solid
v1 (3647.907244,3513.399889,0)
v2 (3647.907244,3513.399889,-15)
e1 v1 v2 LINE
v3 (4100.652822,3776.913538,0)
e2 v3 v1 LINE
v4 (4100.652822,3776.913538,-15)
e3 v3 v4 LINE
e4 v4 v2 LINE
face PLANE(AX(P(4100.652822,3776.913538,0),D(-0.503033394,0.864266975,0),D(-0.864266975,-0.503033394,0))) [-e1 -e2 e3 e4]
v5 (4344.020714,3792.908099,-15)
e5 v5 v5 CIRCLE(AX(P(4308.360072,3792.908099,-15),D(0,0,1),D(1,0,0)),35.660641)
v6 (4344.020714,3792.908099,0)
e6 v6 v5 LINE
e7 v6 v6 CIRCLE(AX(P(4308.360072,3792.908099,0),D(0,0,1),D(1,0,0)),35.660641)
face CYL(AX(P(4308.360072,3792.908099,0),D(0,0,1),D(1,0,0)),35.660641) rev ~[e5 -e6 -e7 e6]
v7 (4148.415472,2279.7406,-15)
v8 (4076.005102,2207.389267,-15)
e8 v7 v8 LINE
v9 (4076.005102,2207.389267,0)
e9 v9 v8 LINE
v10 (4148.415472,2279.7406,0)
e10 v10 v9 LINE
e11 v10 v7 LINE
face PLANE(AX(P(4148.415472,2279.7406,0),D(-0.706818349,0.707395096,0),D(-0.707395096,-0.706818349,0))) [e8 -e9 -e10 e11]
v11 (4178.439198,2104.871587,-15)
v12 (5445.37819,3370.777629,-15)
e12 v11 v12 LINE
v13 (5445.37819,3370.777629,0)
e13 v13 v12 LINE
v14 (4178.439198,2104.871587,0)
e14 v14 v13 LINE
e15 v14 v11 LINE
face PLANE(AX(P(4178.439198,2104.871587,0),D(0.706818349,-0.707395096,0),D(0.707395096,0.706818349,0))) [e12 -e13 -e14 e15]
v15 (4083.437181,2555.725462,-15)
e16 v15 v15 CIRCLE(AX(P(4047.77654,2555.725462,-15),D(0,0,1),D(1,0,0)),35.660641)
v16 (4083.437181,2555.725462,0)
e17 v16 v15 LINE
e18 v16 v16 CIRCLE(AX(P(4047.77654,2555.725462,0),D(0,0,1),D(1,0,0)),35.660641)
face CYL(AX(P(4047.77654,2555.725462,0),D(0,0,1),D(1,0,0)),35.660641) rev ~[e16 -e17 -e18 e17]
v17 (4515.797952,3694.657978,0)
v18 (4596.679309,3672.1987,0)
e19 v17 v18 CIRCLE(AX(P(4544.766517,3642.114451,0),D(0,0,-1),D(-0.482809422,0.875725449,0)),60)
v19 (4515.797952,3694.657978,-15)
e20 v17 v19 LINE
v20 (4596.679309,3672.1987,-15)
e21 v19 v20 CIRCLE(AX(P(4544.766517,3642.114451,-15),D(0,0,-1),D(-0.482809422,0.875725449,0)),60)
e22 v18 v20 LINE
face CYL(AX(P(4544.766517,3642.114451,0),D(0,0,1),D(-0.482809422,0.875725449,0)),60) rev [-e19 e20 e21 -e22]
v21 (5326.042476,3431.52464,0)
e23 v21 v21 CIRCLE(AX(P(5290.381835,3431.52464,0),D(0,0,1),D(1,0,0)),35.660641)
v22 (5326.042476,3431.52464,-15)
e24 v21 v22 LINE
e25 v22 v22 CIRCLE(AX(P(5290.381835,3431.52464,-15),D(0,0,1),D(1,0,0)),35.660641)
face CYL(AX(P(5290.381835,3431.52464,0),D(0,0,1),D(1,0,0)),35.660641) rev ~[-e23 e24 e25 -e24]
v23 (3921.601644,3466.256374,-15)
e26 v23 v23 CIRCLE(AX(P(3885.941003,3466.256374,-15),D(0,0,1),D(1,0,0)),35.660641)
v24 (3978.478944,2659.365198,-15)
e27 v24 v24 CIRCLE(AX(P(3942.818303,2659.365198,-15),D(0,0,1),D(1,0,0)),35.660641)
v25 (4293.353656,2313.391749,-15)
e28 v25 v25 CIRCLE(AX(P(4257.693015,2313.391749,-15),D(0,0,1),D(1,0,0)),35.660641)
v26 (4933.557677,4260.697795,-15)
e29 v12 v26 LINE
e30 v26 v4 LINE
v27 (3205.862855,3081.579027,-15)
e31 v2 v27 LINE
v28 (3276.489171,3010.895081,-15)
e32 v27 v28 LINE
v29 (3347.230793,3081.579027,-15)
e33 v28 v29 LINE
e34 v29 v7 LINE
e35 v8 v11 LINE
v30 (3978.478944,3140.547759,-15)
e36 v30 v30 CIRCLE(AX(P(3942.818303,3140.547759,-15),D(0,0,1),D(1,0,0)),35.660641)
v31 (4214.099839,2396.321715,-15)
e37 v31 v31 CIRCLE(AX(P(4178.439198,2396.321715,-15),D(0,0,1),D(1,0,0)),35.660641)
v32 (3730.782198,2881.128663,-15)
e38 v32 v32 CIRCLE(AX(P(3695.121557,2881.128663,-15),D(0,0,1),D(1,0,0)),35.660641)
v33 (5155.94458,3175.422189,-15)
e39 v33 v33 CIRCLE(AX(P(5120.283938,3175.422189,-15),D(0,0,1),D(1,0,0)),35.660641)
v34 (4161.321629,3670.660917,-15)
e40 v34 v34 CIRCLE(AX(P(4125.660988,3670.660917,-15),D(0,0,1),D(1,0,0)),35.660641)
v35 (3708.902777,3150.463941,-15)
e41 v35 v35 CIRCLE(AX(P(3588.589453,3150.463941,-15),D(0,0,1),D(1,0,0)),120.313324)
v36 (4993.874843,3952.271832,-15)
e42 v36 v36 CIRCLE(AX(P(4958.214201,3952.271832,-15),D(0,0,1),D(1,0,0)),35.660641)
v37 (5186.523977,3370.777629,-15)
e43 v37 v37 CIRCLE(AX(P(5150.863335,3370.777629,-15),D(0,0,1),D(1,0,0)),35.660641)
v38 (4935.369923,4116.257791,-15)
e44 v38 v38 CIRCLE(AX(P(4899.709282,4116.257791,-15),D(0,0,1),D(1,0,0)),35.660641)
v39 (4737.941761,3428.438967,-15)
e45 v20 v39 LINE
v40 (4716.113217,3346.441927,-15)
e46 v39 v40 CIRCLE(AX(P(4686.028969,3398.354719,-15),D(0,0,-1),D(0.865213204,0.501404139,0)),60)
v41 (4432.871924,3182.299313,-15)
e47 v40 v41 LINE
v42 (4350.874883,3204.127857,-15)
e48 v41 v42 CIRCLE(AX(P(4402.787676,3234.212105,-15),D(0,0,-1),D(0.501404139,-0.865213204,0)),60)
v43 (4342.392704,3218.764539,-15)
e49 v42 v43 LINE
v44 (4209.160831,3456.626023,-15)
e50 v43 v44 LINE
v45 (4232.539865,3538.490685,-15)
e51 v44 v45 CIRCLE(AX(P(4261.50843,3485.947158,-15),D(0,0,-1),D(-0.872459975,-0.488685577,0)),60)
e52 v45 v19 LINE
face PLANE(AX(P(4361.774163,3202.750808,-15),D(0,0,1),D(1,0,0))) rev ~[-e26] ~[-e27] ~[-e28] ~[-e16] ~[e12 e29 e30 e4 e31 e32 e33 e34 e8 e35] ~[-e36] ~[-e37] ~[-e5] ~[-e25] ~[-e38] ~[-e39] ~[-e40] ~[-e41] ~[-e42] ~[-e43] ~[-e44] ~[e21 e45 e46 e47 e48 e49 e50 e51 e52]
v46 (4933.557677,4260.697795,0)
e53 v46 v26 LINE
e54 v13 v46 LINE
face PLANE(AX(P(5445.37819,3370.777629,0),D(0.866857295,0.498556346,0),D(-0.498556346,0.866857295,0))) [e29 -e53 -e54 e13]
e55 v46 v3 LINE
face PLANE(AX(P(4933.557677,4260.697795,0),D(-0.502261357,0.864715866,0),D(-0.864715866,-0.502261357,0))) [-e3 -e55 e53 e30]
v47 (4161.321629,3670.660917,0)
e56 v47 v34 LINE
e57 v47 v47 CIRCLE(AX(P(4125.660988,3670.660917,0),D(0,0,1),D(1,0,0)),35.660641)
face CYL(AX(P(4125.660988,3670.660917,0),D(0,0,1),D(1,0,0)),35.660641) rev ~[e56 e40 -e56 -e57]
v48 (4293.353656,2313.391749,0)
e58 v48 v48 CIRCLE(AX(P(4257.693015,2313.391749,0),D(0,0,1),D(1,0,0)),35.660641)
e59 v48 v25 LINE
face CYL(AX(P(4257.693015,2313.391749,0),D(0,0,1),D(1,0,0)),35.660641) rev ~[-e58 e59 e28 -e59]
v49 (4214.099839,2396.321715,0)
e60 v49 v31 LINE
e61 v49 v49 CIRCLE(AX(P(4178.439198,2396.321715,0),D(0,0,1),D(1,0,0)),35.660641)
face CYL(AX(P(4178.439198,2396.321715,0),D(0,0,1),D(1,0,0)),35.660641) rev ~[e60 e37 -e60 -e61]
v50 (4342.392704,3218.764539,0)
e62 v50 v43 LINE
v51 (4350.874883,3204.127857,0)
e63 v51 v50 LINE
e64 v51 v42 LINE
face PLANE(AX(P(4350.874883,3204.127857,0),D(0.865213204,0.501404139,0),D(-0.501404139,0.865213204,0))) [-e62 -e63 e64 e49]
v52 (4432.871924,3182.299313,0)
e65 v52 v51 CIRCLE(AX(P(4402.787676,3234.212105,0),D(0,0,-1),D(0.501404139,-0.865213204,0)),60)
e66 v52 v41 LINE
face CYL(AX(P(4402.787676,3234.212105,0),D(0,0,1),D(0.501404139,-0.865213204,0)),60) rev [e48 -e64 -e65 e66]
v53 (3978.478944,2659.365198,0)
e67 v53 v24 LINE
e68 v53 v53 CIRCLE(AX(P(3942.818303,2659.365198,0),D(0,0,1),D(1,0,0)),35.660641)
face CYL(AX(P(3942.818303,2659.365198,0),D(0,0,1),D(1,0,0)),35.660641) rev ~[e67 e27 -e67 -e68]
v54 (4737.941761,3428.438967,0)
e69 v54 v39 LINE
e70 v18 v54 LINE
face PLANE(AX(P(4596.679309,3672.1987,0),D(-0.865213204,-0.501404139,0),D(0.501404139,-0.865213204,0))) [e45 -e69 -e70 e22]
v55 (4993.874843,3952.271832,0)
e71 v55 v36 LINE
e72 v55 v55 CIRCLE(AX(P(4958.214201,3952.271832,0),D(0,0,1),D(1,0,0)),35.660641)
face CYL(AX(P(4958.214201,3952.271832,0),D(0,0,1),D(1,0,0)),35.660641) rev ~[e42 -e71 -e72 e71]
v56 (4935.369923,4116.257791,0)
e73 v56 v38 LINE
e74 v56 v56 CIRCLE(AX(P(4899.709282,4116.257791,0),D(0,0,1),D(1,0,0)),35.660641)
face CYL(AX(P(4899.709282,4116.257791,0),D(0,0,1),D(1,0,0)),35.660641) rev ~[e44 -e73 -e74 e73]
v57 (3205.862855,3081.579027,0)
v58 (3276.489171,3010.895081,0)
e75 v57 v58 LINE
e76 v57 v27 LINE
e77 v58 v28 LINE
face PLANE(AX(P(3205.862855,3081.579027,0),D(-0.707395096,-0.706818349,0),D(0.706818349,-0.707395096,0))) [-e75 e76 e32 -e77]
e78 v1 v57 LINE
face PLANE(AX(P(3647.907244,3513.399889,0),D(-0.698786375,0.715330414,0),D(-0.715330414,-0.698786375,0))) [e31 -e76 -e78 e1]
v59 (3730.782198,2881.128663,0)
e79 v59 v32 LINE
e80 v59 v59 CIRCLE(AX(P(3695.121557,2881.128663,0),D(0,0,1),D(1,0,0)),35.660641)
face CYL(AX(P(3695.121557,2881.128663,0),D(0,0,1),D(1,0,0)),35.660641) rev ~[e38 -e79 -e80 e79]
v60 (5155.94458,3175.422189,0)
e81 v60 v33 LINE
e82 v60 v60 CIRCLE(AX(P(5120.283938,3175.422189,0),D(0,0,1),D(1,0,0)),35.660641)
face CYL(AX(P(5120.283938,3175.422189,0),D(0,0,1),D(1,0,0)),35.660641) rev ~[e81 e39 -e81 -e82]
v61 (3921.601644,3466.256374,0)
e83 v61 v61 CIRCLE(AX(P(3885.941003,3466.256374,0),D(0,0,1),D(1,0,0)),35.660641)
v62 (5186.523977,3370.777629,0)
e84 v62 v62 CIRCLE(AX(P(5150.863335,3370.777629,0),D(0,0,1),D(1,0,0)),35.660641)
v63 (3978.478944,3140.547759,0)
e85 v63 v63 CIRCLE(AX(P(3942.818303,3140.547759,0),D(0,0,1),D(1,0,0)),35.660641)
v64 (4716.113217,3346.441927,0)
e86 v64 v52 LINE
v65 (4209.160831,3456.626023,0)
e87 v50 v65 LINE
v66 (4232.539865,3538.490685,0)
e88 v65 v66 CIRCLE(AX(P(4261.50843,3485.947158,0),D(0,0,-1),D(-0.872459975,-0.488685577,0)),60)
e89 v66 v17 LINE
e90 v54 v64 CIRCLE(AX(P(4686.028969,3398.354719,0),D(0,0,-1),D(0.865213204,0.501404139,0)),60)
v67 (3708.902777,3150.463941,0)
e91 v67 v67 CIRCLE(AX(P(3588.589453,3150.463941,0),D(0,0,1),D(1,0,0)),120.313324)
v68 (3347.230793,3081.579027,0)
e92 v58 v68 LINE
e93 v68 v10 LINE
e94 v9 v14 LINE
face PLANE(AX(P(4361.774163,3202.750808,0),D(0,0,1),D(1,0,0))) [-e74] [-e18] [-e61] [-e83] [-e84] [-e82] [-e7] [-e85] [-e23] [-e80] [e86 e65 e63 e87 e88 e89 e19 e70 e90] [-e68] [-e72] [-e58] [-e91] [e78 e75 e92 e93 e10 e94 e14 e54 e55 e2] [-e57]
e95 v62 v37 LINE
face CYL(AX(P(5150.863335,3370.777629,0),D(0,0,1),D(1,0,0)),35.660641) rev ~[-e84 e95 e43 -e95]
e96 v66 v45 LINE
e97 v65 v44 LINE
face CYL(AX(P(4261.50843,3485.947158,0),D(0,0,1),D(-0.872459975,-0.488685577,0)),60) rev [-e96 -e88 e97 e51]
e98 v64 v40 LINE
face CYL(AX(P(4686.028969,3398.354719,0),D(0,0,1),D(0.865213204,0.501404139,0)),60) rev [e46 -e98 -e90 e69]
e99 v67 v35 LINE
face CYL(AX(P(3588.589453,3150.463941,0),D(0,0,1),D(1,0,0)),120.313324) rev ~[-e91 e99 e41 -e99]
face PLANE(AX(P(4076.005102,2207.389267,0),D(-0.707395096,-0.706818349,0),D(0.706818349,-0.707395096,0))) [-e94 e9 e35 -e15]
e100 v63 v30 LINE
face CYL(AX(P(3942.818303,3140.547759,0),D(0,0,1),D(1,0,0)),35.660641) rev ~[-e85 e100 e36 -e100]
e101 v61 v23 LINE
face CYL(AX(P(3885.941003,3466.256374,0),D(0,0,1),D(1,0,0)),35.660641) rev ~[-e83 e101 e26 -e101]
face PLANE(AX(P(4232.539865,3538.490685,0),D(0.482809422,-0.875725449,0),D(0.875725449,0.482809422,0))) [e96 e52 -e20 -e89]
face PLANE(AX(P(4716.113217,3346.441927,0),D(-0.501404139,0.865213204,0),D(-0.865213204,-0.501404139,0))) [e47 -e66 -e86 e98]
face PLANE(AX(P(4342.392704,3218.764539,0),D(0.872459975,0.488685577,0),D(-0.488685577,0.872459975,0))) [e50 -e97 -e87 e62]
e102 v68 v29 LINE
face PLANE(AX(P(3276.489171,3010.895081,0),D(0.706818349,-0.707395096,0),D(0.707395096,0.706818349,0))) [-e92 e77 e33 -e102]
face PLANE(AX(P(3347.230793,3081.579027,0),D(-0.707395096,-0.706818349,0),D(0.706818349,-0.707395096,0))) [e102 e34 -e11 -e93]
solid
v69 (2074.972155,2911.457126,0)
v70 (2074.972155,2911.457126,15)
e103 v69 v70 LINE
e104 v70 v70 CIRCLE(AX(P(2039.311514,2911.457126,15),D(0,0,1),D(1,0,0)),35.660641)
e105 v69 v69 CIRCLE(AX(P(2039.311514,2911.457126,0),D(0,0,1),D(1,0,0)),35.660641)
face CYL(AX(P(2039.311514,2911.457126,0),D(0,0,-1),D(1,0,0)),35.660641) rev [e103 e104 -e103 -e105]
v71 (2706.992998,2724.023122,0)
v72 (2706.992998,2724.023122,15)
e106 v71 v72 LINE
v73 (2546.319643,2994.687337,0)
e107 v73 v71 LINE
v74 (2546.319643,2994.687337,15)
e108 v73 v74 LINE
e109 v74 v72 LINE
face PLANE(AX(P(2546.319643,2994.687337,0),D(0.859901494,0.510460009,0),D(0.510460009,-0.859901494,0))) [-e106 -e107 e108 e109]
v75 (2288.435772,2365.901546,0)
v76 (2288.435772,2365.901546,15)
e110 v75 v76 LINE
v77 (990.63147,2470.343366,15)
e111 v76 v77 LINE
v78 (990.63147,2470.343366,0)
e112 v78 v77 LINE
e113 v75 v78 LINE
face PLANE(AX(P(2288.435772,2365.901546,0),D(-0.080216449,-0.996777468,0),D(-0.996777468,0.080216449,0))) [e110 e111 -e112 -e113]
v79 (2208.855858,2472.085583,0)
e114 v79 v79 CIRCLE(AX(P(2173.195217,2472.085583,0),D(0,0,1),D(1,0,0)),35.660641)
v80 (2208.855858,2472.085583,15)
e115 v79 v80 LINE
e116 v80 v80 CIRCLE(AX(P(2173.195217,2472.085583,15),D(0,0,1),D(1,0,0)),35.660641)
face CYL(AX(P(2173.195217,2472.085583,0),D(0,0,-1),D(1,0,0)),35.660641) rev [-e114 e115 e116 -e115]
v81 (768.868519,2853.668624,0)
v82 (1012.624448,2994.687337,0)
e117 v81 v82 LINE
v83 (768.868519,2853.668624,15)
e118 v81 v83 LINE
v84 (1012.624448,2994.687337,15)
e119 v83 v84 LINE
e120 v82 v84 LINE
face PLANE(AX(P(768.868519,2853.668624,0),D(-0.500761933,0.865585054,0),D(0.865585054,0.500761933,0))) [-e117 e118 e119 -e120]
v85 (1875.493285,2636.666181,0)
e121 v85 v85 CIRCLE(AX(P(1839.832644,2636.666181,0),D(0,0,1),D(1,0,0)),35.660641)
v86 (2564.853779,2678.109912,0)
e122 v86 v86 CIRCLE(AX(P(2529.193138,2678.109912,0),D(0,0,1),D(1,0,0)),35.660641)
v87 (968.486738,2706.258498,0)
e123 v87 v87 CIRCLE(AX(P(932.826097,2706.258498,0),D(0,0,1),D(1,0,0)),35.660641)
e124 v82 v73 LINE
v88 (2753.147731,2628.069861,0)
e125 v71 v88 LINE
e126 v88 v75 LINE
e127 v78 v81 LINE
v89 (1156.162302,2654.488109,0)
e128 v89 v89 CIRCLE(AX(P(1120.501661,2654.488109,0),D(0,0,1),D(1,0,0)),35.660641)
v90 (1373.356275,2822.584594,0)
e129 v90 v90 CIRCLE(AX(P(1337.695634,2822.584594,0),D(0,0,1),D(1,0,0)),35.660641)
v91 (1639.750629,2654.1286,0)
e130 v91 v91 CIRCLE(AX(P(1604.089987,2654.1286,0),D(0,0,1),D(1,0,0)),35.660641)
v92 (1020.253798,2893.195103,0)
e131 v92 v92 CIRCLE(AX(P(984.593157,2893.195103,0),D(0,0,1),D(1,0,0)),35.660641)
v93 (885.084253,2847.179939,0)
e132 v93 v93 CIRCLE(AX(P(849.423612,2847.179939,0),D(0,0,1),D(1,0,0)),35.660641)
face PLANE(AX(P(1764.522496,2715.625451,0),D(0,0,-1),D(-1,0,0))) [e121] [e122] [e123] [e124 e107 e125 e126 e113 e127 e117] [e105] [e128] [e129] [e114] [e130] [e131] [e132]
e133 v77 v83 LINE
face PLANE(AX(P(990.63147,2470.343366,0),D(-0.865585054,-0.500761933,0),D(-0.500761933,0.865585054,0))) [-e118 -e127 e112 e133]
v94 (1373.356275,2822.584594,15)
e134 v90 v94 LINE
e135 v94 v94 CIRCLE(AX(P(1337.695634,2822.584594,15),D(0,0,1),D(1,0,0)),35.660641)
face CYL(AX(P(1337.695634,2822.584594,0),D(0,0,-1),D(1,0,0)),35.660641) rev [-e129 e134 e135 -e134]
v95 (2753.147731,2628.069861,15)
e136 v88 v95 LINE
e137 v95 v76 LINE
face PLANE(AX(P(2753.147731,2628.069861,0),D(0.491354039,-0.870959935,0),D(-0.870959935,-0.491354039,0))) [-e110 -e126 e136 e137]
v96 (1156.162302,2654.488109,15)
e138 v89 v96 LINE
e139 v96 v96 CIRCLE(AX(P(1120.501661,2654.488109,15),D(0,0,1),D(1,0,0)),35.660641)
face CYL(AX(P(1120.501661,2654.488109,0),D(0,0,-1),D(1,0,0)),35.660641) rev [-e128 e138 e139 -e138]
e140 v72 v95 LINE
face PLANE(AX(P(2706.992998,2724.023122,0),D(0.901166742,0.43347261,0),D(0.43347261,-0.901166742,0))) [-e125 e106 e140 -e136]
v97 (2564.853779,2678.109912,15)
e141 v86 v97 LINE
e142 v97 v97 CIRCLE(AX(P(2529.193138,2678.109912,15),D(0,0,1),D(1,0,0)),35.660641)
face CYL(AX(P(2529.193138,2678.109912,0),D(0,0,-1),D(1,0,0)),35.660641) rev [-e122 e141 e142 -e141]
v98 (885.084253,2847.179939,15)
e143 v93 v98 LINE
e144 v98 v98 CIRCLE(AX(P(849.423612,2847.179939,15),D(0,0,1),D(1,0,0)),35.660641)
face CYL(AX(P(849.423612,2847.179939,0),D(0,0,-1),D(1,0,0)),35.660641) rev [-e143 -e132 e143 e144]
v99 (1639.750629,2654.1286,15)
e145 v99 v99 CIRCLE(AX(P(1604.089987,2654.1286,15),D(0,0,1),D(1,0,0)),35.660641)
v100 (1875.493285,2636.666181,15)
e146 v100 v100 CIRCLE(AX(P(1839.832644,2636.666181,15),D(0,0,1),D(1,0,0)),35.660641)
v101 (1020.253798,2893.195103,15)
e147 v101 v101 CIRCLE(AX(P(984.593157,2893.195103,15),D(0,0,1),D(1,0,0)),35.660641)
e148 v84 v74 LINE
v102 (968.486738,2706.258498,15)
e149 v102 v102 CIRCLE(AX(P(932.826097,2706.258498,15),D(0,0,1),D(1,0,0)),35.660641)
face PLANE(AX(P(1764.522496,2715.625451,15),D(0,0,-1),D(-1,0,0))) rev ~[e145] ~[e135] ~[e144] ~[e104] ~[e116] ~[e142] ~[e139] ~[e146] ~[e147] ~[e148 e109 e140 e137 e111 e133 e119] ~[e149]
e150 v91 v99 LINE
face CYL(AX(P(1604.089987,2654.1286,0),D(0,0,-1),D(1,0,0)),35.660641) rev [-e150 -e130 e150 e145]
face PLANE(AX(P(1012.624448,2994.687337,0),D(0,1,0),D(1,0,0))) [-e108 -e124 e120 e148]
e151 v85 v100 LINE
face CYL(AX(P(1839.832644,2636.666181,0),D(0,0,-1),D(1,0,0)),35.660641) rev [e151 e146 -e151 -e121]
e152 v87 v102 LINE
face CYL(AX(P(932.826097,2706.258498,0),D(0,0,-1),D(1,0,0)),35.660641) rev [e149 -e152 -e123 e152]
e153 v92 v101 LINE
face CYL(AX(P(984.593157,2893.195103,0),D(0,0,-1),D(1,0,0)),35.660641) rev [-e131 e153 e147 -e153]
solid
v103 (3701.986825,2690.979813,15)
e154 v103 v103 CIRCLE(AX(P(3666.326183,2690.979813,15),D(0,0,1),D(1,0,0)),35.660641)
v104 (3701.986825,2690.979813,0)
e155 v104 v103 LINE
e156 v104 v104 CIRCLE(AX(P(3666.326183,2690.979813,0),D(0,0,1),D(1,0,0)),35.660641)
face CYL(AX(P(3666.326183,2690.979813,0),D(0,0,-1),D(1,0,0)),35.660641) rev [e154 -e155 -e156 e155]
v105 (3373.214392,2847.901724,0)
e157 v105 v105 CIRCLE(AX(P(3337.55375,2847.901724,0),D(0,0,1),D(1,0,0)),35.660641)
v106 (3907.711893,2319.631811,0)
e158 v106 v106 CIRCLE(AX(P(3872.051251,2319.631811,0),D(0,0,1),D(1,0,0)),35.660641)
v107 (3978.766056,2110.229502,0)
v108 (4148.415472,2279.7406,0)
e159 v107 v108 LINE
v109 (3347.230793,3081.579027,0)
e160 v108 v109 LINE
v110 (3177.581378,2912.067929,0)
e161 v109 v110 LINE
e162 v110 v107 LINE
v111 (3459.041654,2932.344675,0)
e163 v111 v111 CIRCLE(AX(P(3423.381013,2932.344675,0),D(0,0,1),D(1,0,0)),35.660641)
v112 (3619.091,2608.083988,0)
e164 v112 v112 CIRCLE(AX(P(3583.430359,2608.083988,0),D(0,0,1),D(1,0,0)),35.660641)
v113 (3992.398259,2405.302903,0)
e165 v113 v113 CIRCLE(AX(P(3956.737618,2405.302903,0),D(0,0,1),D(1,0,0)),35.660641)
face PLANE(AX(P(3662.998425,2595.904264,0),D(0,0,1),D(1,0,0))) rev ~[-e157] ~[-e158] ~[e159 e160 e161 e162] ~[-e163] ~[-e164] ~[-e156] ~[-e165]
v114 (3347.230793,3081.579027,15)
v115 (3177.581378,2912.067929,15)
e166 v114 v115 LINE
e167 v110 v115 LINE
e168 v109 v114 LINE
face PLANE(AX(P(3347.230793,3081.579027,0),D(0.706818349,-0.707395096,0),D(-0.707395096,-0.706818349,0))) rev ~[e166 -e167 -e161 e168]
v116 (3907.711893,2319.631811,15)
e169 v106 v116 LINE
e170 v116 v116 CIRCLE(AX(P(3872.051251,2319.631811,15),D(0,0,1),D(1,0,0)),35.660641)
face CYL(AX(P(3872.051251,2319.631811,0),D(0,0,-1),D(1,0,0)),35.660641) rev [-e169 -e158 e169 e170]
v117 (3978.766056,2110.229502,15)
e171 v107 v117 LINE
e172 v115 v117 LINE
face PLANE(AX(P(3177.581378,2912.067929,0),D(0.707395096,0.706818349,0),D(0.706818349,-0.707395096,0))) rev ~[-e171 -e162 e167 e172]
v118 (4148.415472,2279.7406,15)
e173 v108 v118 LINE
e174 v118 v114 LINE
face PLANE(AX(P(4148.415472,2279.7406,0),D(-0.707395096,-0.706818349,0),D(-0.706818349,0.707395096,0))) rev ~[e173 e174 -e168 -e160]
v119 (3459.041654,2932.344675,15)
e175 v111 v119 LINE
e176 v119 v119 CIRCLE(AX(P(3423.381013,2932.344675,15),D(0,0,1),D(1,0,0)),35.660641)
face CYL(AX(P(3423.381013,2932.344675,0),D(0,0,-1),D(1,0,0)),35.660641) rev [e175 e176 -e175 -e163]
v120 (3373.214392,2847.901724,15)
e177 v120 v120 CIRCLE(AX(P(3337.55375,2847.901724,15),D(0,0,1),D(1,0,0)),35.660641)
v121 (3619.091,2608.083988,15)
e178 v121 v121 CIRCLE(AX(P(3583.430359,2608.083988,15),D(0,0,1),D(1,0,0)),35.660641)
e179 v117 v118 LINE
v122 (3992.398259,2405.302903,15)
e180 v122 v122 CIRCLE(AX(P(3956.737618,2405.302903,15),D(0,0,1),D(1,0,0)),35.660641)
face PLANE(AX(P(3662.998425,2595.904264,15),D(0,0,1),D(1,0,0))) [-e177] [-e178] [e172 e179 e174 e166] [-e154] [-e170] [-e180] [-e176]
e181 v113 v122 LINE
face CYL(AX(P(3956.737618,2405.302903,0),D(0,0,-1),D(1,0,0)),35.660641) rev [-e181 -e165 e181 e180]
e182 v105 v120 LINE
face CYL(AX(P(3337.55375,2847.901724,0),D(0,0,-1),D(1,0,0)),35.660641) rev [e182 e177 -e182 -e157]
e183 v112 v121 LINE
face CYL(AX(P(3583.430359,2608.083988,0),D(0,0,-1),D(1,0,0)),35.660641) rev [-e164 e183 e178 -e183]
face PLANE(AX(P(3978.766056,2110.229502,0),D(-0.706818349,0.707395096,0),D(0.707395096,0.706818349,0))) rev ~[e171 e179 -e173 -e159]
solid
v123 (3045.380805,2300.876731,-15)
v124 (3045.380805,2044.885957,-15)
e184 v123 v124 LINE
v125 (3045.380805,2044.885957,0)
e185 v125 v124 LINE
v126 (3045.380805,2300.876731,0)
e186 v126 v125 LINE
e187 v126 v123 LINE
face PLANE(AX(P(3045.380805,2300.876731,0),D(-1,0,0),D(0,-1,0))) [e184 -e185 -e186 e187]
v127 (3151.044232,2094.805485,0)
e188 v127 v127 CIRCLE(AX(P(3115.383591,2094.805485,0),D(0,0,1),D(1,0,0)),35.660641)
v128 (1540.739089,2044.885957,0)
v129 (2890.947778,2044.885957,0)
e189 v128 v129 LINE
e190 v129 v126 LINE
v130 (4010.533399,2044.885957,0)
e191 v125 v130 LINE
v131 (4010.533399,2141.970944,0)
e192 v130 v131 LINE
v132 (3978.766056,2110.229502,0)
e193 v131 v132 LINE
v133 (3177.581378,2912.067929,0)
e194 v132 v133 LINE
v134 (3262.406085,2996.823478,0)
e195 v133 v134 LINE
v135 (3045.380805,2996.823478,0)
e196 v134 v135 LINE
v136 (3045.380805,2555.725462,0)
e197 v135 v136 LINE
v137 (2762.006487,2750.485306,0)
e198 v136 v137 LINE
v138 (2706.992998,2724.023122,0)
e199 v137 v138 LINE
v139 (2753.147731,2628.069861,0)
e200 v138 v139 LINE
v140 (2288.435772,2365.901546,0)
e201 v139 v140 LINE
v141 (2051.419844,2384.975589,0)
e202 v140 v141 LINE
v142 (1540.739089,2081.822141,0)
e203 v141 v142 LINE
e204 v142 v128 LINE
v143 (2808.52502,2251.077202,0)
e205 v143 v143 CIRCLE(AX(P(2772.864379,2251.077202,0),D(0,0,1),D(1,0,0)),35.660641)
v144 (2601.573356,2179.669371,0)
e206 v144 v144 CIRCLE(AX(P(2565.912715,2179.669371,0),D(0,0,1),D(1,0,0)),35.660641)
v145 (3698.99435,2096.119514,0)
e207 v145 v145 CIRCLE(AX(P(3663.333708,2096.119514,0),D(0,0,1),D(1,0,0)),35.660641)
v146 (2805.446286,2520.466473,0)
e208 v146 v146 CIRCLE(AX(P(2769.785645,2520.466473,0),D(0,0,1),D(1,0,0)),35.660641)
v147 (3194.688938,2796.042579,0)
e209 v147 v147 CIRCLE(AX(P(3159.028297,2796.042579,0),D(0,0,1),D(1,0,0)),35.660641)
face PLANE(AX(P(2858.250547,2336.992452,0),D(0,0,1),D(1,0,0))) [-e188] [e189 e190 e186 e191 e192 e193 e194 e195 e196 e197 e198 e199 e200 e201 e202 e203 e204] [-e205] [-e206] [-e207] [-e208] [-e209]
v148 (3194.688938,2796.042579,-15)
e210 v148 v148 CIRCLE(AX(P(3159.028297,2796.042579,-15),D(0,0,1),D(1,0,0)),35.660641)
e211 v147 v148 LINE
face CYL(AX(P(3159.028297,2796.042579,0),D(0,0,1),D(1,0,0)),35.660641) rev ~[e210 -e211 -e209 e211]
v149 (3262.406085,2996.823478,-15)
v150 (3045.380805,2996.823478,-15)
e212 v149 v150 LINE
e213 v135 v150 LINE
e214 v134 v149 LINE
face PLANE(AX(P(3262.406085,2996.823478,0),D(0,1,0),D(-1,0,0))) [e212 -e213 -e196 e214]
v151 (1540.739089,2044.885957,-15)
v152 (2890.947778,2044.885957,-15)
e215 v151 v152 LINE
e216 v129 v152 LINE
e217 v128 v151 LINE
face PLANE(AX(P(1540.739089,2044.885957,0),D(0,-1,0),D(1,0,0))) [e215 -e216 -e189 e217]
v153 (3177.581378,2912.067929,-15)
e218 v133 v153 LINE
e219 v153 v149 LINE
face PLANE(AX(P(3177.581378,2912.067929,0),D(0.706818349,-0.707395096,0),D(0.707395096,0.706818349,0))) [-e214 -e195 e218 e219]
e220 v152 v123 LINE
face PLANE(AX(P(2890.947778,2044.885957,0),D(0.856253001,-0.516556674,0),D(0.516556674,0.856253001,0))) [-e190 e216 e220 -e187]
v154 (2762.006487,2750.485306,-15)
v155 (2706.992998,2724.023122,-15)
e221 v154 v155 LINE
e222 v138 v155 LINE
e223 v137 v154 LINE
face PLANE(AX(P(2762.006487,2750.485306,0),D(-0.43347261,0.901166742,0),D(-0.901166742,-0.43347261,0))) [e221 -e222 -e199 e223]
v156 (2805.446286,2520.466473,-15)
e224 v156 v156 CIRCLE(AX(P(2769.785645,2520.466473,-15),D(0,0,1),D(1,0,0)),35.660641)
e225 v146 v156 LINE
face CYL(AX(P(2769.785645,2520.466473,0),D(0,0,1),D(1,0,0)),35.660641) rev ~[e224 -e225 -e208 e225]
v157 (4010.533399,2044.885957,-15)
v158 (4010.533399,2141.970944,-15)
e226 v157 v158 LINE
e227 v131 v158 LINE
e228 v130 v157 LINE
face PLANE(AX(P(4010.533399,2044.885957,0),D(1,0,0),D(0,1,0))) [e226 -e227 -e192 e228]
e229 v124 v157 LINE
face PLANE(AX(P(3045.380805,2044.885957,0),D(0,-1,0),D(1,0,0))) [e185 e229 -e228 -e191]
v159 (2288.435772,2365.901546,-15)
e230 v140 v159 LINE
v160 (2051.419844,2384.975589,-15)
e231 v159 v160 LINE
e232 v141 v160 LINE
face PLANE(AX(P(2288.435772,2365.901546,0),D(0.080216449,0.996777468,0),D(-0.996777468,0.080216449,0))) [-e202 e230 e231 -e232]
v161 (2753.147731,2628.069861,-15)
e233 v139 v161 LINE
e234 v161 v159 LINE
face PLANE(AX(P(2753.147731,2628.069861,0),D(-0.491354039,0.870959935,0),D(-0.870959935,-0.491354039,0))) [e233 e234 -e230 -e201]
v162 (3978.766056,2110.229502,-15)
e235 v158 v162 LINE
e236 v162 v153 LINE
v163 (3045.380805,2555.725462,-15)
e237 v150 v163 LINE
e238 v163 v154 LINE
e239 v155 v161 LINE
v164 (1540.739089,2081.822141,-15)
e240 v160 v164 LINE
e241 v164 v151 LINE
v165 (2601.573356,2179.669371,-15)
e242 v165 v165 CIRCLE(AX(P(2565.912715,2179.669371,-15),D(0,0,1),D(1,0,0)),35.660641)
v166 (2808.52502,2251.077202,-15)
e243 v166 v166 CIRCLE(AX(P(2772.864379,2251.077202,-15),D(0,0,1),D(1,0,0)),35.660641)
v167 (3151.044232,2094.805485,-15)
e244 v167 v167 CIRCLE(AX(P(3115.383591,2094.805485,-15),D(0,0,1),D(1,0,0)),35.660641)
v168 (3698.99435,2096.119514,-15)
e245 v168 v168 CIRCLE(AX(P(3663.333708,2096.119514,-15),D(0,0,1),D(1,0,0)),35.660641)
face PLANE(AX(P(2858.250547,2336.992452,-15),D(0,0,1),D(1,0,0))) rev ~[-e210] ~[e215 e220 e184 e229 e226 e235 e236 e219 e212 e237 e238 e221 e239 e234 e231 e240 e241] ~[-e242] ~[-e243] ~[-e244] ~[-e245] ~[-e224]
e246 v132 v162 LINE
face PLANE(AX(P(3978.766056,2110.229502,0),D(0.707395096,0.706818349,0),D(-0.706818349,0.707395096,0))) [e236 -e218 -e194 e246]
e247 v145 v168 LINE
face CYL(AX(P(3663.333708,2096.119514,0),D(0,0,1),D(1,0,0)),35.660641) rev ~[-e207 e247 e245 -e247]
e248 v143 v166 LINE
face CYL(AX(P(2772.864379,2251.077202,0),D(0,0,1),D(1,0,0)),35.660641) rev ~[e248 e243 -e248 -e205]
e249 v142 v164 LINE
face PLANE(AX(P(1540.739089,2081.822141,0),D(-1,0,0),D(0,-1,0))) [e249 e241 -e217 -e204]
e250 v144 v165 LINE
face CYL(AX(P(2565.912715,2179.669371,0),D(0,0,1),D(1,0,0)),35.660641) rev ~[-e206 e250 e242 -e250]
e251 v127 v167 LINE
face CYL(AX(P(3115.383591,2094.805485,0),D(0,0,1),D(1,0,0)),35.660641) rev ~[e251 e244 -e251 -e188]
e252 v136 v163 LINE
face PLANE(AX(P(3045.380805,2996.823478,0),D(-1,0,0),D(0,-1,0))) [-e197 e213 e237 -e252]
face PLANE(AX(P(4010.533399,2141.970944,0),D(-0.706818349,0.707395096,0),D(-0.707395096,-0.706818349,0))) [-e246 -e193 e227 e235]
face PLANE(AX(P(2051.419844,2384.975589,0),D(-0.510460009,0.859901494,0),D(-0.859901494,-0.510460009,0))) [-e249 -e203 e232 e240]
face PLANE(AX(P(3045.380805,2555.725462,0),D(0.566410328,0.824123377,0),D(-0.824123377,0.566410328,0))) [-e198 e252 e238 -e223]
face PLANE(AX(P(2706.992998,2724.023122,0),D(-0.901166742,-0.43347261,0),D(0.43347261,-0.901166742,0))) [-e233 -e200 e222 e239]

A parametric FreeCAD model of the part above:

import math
import FreeCAD as App
import Part
import Sketcher
from FreeCAD import Vector


def add_polygon(sketch, points):
    """Adds a closed chain of lines whose ends are joined by coincident constraints."""
    first, n = sketch.GeometryCount, len(points)
    for a, b in zip(points, points[1:] + points[:1]):
        sketch.addGeometry(Part.LineSegment(App.Vector(*a, 0), App.Vector(*b, 0)), False)
    for i in range(n):
        sketch.addConstraint(Sketcher.Constraint("Coincident", first + i, 2, first + (i + 1) % n, 1))

doc = App.newDocument("Part")
body = doc.addObject("PartDesign::Body", "Body")

sketch1 = body.newObject("Sketcher::SketchObject", "Sketch")
sketch1.AttachmentSupport = (doc.getObject("XY_Plane"), [""])
sketch1.MapMode = "FlatFace"
add_polygon(sketch1, [(3178, 2912), (3979, 2110), (4148, 2280), (3347, 3082)])
sketch1.addGeometry(Part.Circle(Vector(3583, 2608, 0), Vector(0, 0, 1), 36), False)
sketch1.addGeometry(Part.Circle(Vector(3872, 2320, 0), Vector(0, 0, 1), 36), False)
sketch1.addGeometry(Part.Circle(Vector(3957, 2405, 0), Vector(0, 0, 1), 36), False)
sketch1.addGeometry(Part.Circle(Vector(3338, 2848, 0), Vector(0, 0, 1), 36), False)
sketch1.addGeometry(Part.Circle(Vector(3423, 2932, 0), Vector(0, 0, 1), 36), False)
sketch1.addGeometry(Part.Circle(Vector(3666, 2691, 0), Vector(0, 0, 1), 36), False)
sketch1.addConstraint(Sketcher.Constraint("Equal", 4, 5))
sketch1.addConstraint(Sketcher.Constraint("Equal", 5, 6))
sketch1.addConstraint(Sketcher.Constraint("Equal", 6, 7))
sketch1.addConstraint(Sketcher.Constraint("Equal", 7, 8))
sketch1.addConstraint(Sketcher.Constraint("Equal", 8, 9))
sketch1.addConstraint(Sketcher.Constraint("Perpendicular", 0, 1))
sketch1.addConstraint(Sketcher.Constraint("Perpendicular", 1, 2))
sketch1.addConstraint(Sketcher.Constraint("Perpendicular", 2, 3))
sketch1.addConstraint(Sketcher.Constraint("Diameter", 4, 71.321283))
sketch1.addConstraint(Sketcher.Constraint("DistanceY", -1, 1, 0, 2, 2110.229502))
sketch1.addConstraint(Sketcher.Constraint("DistanceY", -1, 1, 1, 2, 2279.7406))
sketch1.addConstraint(Sketcher.Constraint("DistanceX", 7, 3, 5, 3, 534.497501))
sketch1.addConstraint(Sketcher.Constraint("DistanceY", 0, 2, 6, 3, 295.073401))
sketch1.addConstraint(Sketcher.Constraint("Distance", 1, 239.822719))
sketch1.addConstraint(Sketcher.Constraint("DistanceX", -1, 1, 4, 3, 3583.430359))
sketch1.addConstraint(Sketcher.Constraint("DistanceY", -1, 1, 4, 3, 2608.083988))
sketch1.addConstraint(Sketcher.Constraint("DistanceX", -1, 1, 5, 3, 3872.051251))
sketch1.addConstraint(Sketcher.Constraint("DistanceY", -1, 1, 5, 3, 2319.631811))
sketch1.addConstraint(Sketcher.Constraint("DistanceX", -1, 1, 1, 2, 4148.415472))
sketch1.addConstraint(Sketcher.Constraint("DistanceY", -1, 1, 3, 2, 2912.067929))
sketch1.addConstraint(Sketcher.Constraint("DistanceX", 4, 3, 6, 3, 373.307259))
sketch1.addConstraint(Sketcher.Constraint("DistanceY", 6, 3, 7, 3, 442.598821))
sketch1.addConstraint(Sketcher.Constraint("DistanceY", 7, 3, 8, 3, 84.442952))
sketch1.addConstraint(Sketcher.Constraint("DistanceX", 8, 3, 5, 3, 448.670239))
sketch1.addConstraint(Sketcher.Constraint("DistanceX", 8, 3, 9, 3, 242.945171))
sketch1.addConstraint(Sketcher.Constraint("DistanceY", 9, 3, 8, 3, 241.364862))
pad1 = body.newObject("PartDesign::Pad", "Pad")
pad1.Profile = sketch1
pad1.Length = 15
body2 = doc.addObject("PartDesign::Body", "Body001")

sketch2 = body2.newObject("Sketcher::SketchObject", "Sketch001")
sketch2.AttachmentSupport = (doc.getObject("XY_Plane001"), [""])
sketch2.MapMode = "FlatFace"
add_polygon(sketch2, [(5445.37819, 3370.777629), (4933.557677, 4260.697795), (4100.652822, 3776.913538), (3647.907244, 3513.399889), (3205.862855, 3081.579027), (3276.489171, 3010.895081), (3347.230793, 3081.579027), (4148.415472, 2279.7406), (4076.005102, 2207.389267), (4178.439198, 2104.871587)])
sketch2.addGeometry(Part.Circle(Vector(4257.693015, 2313.391749, 0), Vector(0, 0, 1), 35.660641), False)
sketch2.addGeometry(Part.Circle(Vector(4178.439198, 2396.321715, 0), Vector(0, 0, 1), 35.660641), False)
sketch2.addGeometry(Part.Circle(Vector(4047.77654, 2555.725462, 0), Vector(0, 0, 1), 35.660641), False)
sketch2.addGeometry(Part.Circle(Vector(3942.818303, 2659.365198, 0), Vector(0, 0, 1), 35.660641), False)
sketch2.addGeometry(Part.Circle(Vector(3695.121557, 2881.128663, 0), Vector(0, 0, 1), 35.660641), False)
sketch2.addGeometry(Part.Circle(Vector(3588.589453, 3150.463941, 0), Vector(0, 0, 1), 120.313324), False)
sketch2.addGeometry(Part.Circle(Vector(3942.818303, 3140.547759, 0), Vector(0, 0, 1), 35.660641), False)
sketch2.addGeometry(Part.Circle(Vector(5120.283938, 3175.422189, 0), Vector(0, 0, 1), 35.660641), False)
sketch2.addGeometry(Part.Circle(Vector(3885.941003, 3466.256374, 0), Vector(0, 0, 1), 35.660641), False)
sketch2.addGeometry(Part.Circle(Vector(4125.660988, 3670.660917, 0), Vector(0, 0, 1), 35.660641), False)
sketch2.addGeometry(Part.Circle(Vector(4308.360072, 3792.908099, 0), Vector(0, 0, 1), 35.660641), False)
sketch2.addGeometry(Part.ArcOfCircle(Part.Circle(Vector(4402.787676, 3234.212105, 0), Vector(0, 0, 1), 60), math.radians(-149.907059), math.radians(-59.907059)), False)
sketch2.addGeometry(Part.LineSegment(Vector(4350.874883, 3204.127857, 0), Vector(4342.392704, 3218.764539, 0)), False)
sketch2.addGeometry(Part.LineSegment(Vector(4342.392704, 3218.764539, 0), Vector(4209.160831, 3456.626023, 0)), False)
sketch2.addGeometry(Part.ArcOfCircle(Part.Circle(Vector(4261.50843, 3485.947158, 0), Vector(0, 0, 1), 60), math.radians(118.869051), math.radians(209.254225)), False)
sketch2.addGeometry(Part.LineSegment(Vector(4232.539865, 3538.490685, 0), Vector(4515.797952, 3694.657978, 0)), False)
sketch2.addGeometry(Part.ArcOfCircle(Part.Circle(Vector(4544.766517, 3642.114451, 0), Vector(0, 0, 1), 60), math.radians(30.092941), math.radians(118.869051)), False)
sketch2.addGeometry(Part.LineSegment(Vector(4596.679309, 3672.1987, 0), Vector(4737.941761, 3428.438967, 0)), False)
sketch2.addGeometry(Part.ArcOfCircle(Part.Circle(Vector(4686.028969, 3398.354719, 0), Vector(0, 0, 1), 60), math.radians(-59.907059), math.radians(30.092941)), False)
sketch2.addGeometry(Part.LineSegment(Vector(4716.113217, 3346.441927, 0), Vector(4432.871924, 3182.299313, 0)), False)
sketch2.addGeometry(Part.Circle(Vector(5150.863335, 3370.777629, 0), Vector(0, 0, 1), 35.660641), False)
sketch2.addGeometry(Part.Circle(Vector(5290.381835, 3431.52464, 0), Vector(0, 0, 1), 35.660641), False)
sketch2.addGeometry(Part.Circle(Vector(4958.214201, 3952.271832, 0), Vector(0, 0, 1), 35.660641), False)
sketch2.addGeometry(Part.Circle(Vector(4899.709282, 4116.257791, 0), Vector(0, 0, 1), 35.660641), False)
sketch2.addConstraint(Sketcher.Constraint("Tangent", 21, 1, 22, 1))
sketch2.addConstraint(Sketcher.Constraint("Coincident", 22, 2, 23, 1))
sketch2.addConstraint(Sketcher.Constraint("Tangent", 23, 2, 24, 2))
sketch2.addConstraint(Sketcher.Constraint("Tangent", 24, 1, 25, 1))
sketch2.addConstraint(Sketcher.Constraint("Tangent", 25, 2, 26, 2))
sketch2.addConstraint(Sketcher.Constraint("Tangent", 26, 1, 27, 1))
sketch2.addConstraint(Sketcher.Constraint("Tangent", 27, 2, 28, 2))
sketch2.addConstraint(Sketcher.Constraint("Tangent", 28, 1, 29, 1))
sketch2.addConstraint(Sketcher.Constraint("Tangent", 29, 2, 21, 2))
sketch2.addConstraint(Sketcher.Constraint("Equal", 10, 11))
sketch2.addConstraint(Sketcher.Constraint("Equal", 11, 12))
sketch2.addConstraint(Sketcher.Constraint("Equal", 12, 13))
sketch2.addConstraint(Sketcher.Constraint("Equal", 13, 14))
sketch2.addConstraint(Sketcher.Constraint("Equal", 14, 16))
sketch2.addConstraint(Sketcher.Constraint("Equal", 16, 17))
sketch2.addConstraint(Sketcher.Constraint("Equal", 17, 18))
sketch2.addConstraint(Sketcher.Constraint("Equal", 18, 19))
sketch2.addConstraint(Sketcher.Constraint("Equal", 19, 20))
sketch2.addConstraint(Sketcher.Constraint("Equal", 21, 24))
sketch2.addConstraint(Sketcher.Constraint("Equal", 24, 26))
sketch2.addConstraint(Sketcher.Constraint("Equal", 26, 28))
sketch2.addConstraint(Sketcher.Constraint("Equal", 20, 30))
sketch2.addConstraint(Sketcher.Constraint("Equal", 30, 31))
sketch2.addConstraint(Sketcher.Constraint("Equal", 31, 32))
sketch2.addConstraint(Sketcher.Constraint("Equal", 32, 33))
sketch2.addConstraint(Sketcher.Constraint("Perpendicular", 4, 5))
sketch2.addConstraint(Sketcher.Constraint("Perpendicular", 5, 6))
sketch2.addConstraint(Sketcher.Constraint("Perpendicular", 6, 7))
sketch2.addConstraint(Sketcher.Constraint("Perpendicular", 7, 8))
sketch2.addConstraint(Sketcher.Constraint("Perpendicular", 8, 9))
sketch2.addConstraint(Sketcher.Constraint("Parallel", 22, 27))
sketch2.addConstraint(Sketcher.Constraint("Perpendicular", 27, 29))
sketch2.addConstraint(Sketcher.Constraint("Horizontal", 3, 2, 5, 2))
sketch2.addConstraint(Sketcher.Constraint("Horizontal", 30, 3, 9, 2))
sketch2.addConstraint(Sketcher.Constraint("Vertical", 13, 3, 16, 3))
sketch2.addConstraint(Sketcher.Constraint("Vertical", 11, 3, 8, 2))
sketch2.addConstraint(Sketcher.Constraint("Radius", 21, 60.0))
sketch2.addConstraint(Sketcher.Constraint("Diameter", 15, 240.626649))
sketch2.addConstraint(Sketcher.Constraint("Diameter", 10, 71.321283))
sketch2.addConstraint(Sketcher.Constraint("DistanceY", -1, 1, 13, 3, 2659.365198))
sketch2.addConstraint(Sketcher.Constraint("DistanceY", -1, 1, 20, 3, 3792.908099))
sketch2.addConstraint(Sketcher.Constraint("DistanceX", -1, 1, 32, 3, 4958.214201))
sketch2.addConstraint(Sketcher.Constraint("DistanceY", -1, 1, 6, 2, 2279.7406))
sketch2.addConstraint(Sketcher.Constraint("DistanceX", -1, 1, 7, 2, 4076.005102))
sketch2.addConstraint(Sketcher.Constraint("DistanceY", -1, 1, 26, 1, 3672.1987))
sketch2.addConstraint(Sketcher.Constraint("DistanceY", 12, 3, 14, 3, 325.403201))
sketch2.addConstraint(Sketcher.Constraint("DistanceX", 12, 3, 17, 3, 1072.507398))
sketch2.addConstraint(Sketcher.Constraint("DistanceX", 18, 3, 16, 3, 56.8773))
sketch2.addConstraint(Sketcher.Constraint("DistanceY", 16, 3, 24, 3, 345.399399))
sketch2.addConstraint(Sketcher.Constraint("DistanceX", 30, 3, 31, 3, 139.5185))
sketch2.addConstraint(Sketcher.Constraint("DistanceX", 13, 3, 7, 2, 133.186799))
sketch2.addConstraint(Sketcher.Constraint("DistanceY", 21, 1, 24, 3, 281.819301))
sketch2.addConstraint(Sketcher.Constraint("DistanceX", 16, 3, 22, 2, 399.574402))
sketch2.addConstraint(Sketcher.Constraint("DistanceX", 23, 2, 24, 3, 52.347598))
sketch2.addConstraint(Sketcher.Constraint("DistanceX", 26, 3, 28, 1, 171.3467))
sketch2.addConstraint(Sketcher.Constraint("Distance", 1, 963.21218))
sketch2.addConstraint(Sketcher.Constraint("Distance", 3, 617.958331))
sketch2.addConstraint(Sketcher.Constraint("Distance", 7, 102.36199))
sketch2.addConstraint(Sketcher.Constraint("Distance", 9, 1790.992049))
sketch2.addConstraint(Sketcher.Constraint("Distance", 22, 16.91685))
sketch2.addConstraint(Sketcher.Constraint("Distance", 23, 272.633119))
sketch2.addConstraint(Sketcher.Constraint("DistanceY", -1, 1, 10, 3, 2313.391749))
sketch2.addConstraint(Sketcher.Constraint("DistanceX", -1, 1, 12, 3, 4047.77654))
sketch2.addConstraint(Sketcher.Constraint("DistanceY", -1, 1, 15, 3, 3150.463941))
sketch2.addConstraint(Sketcher.Constraint("DistanceY", -1, 1, 16, 3, 3140.547759))
sketch2.addConstraint(Sketcher.Constraint("DistanceY", -1, 1, 17, 3, 3175.422189))
sketch2.addConstraint(Sketcher.Constraint("DistanceY", -1, 1, 30, 3, 3370.777629))
sketch2.addConstraint(Sketcher.Constraint("DistanceY", -1, 1, 31, 3, 3431.52464))
sketch2.addConstraint(Sketcher.Constraint("DistanceY", -1, 1, 33, 3, 4116.257791))
sketch2.addConstraint(Sketcher.Constraint("DistanceY", -1, 1, 1, 2, 3776.913538))
sketch2.addConstraint(Sketcher.Constraint("DistanceY", -1, 1, 2, 2, 3513.399889))
sketch2.addConstraint(Sketcher.Constraint("DistanceX", -1, 1, 4, 2, 3276.489171))
sketch2.addConstraint(Sketcher.Constraint("DistanceY", -1, 1, 4, 2, 3010.895081))
sketch2.addConstraint(Sketcher.Constraint("DistanceX", -1, 1, 6, 2, 4148.415472))
sketch2.addConstraint(Sketcher.Constraint("DistanceX", 13, 3, 10, 3, 314.874712))
sketch2.addConstraint(Sketcher.Constraint("DistanceX", 14, 3, 11, 3, 483.317641))
sketch2.addConstraint(Sketcher.Constraint("DistanceY", 11, 3, 14, 3, 484.806948))
sketch2.addConstraint(Sketcher.Constraint("DistanceY", 14, 3, 15, 3, 269.335279))
sketch2.addConstraint(Sketcher.Constraint("DistanceX", 15, 3, 13, 3, 354.22885))
sketch2.addConstraint(Sketcher.Constraint("DistanceY", 14, 3, 18, 3, 585.127711))
sketch2.addConstraint(Sketcher.Constraint("DistanceX", 14, 3, 19, 3, 430.53943))
sketch2.addConstraint(Sketcher.Constraint("DistanceY", 13, 3, 19, 3, 1011.295719))
sketch2.addConstraint(Sketcher.Constraint("DistanceX", 18, 3, 20, 3, 422.419069))
sketch2.addConstraint(Sketcher.Constraint("DistanceX", 26, 3, 30, 3, 606.096819))
sketch2.addConstraint(Sketcher.Constraint("DistanceY", 26, 3, 32, 3, 310.157381))
sketch2.addConstraint(Sketcher.Constraint("DistanceX", 33, 3, 32, 3, 58.504919))
sketch2.addConstraint(Sketcher.Constraint("DistanceX", 26, 3, 0, 2, 388.79116))
sketch2.addConstraint(Sketcher.Constraint("DistanceX", 1, 2, 20, 3, 207.70725))
pad2 = body2.newObject("PartDesign::Pad", "Pad001")
pad2.Profile = sketch2
pad2.Length = 15
pad2.Reversed = True
body3 = doc.addObject("PartDesign::Body", "Body002")

sketch3 = body3.newObject("Sketcher::SketchObject", "Sketch002")
sketch3.AttachmentSupport = (doc.getObject("XY_Plane002"), [""])
sketch3.MapMode = "FlatFace"
add_polygon(sketch3, [(4010.533399, 2044.885957), (4010.533399, 2141.970944), (3978.766056, 2110.229502), (3177.581378, 2912.067929), (3262.406085, 2996.823478), (3045.380805, 2996.823478), (3045.380805, 2555.725462), (2762.006487, 2750.485306), (2706.992998, 2724.023122), (2753.147731, 2628.069861), (2288.435772, 2365.901546), (2051.419844, 2384.975589), (1540.739089, 2081.822141), (1540.739089, 2044.885957), (2890.947778, 2044.885957), (3045.380805, 2300.876731), (3045.380805, 2044.885957)])
sketch3.addGeometry(Part.Circle(Vector(2565.912715, 2179.669371, 0), Vector(0, 0, 1), 35.660641), False)
sketch3.addGeometry(Part.Circle(Vector(2772.864379, 2251.077202, 0), Vector(0, 0, 1), 35.660641), False)
sketch3.addGeometry(Part.Circle(Vector(3115.383591, 2094.805485, 0), Vector(0, 0, 1), 35.660641), False)
sketch3.addGeometry(Part.Circle(Vector(3663.333708, 2096.119514, 0), Vector(0, 0, 1), 35.660641), False)
sketch3.addGeometry(Part.Circle(Vector(2769.785645, 2520.466473, 0), Vector(0, 0, 1), 35.660641), False)
sketch3.addGeometry(Part.Circle(Vector(3159.028297, 2796.042579, 0), Vector(0, 0, 1), 35.660641), False)
sketch3.addConstraint(Sketcher.Constraint("Vertical", 0))
sketch3.addConstraint(Sketcher.Constraint("Horizontal", 4))
sketch3.addConstraint(Sketcher.Constraint("Vertical", 5))
sketch3.addConstraint(Sketcher.Constraint("Vertical", 12))
sketch3.addConstraint(Sketcher.Constraint("Horizontal", 13))
sketch3.addConstraint(Sketcher.Constraint("Vertical", 15))
sketch3.addConstraint(Sketcher.Constraint("Horizontal", 16))
sketch3.addConstraint(Sketcher.Constraint("Equal", 17, 18))
sketch3.addConstraint(Sketcher.Constraint("Equal", 18, 19))
sketch3.addConstraint(Sketcher.Constraint("Equal", 19, 20))
sketch3.addConstraint(Sketcher.Constraint("Equal", 20, 21))
sketch3.addConstraint(Sketcher.Constraint("Equal", 21, 22))
sketch3.addConstraint(Sketcher.Constraint("Perpendicular", 1, 2))
sketch3.addConstraint(Sketcher.Constraint("Perpendicular", 2, 3))
sketch3.addConstraint(Sketcher.Constraint("Perpendicular", 7, 8))
sketch3.addConstraint(Sketcher.Constraint("Horizontal", 13, 2, 15, 2))
sketch3.addConstraint(Sketcher.Constraint("Vertical", 5, 2, 14, 2))
sketch3.addConstraint(Sketcher.Constraint("Diameter", 17, 71.321283))
sketch3.addConstraint(Sketcher.Constraint("DistanceX", 18, 3, 2, 2, 404.716999))
sketch3.addConstraint(Sketcher.Constraint("Distance", 8, 106.4767))
sketch3.addConstraint(Sketcher.Constraint("DistanceX", 4, 2, 4, 1, 217.025281))
sketch3.addConstraint(Sketcher.Constraint("DistanceX", 13, 1, 13, 2, 1350.208689))
sketch3.addConstraint(Sketcher.Constraint("DistanceX", -1, 1, 0, 2, 4010.533399))
sketch3.addConstraint(Sketcher.Constraint("DistanceY", -1, 1, 1, 2, 2110.229502))
sketch3.addConstraint(Sketcher.Constraint("DistanceY", 1, 2, 18, 3, 140.847701))
sketch3.addConstraint(Sketcher.Constraint("DistanceY", 22, 3, 3, 2, 200.780898))
sketch3.addConstraint(Sketcher.Constraint("DistanceX", 7, 2, 22, 3, 452.0353))
sketch3.addConstraint(Sketcher.Constraint("DistanceY", 5, 2, 8, 2, 72.344398))
sketch3.addConstraint(Sketcher.Constraint("DistanceX", 10, 2, 21, 3, 718.3658))
sketch3.addConstraint(Sketcher.Constraint("DistanceX", 18, 3, 13, 2, 118.083399))
sketch3.addConstraint(Sketcher.Constraint("Distance", 3, 119.911359))
sketch3.addConstraint(Sketcher.Constraint("Distance", 7, 61.046959))
sketch3.addConstraint(Sketcher.Constraint("Distance", 10, 237.782189))
sketch3.addConstraint(Sketcher.Constraint("Distance", 14, 298.96628))
sketch3.addConstraint(Sketcher.Constraint("DistanceX", 16, 1, 16, 2, 965.152595))
sketch3.addConstraint(Sketcher.Constraint("DistanceY", 0, 1, 0, 2, 97.084987))
sketch3.addConstraint(Sketcher.Constraint("DistanceY", 5, 2, 5, 1, 441.098015))
sketch3.addConstraint(Sketcher.Constraint("DistanceY", 12, 2, 12, 1, 36.936184))
sketch3.addConstraint(Sketcher.Constraint("DistanceY", 15, 2, 15, 1, 255.990774))
sketch3.addConstraint(Sketcher.Constraint("DistanceY", -1, 1, 17, 3, 2179.669371))
sketch3.addConstraint(Sketcher.Constraint("DistanceX", -1, 1, 19, 3, 3115.383591))
sketch3.addConstraint(Sketcher.Constraint("DistanceX", -1, 1, 20, 3, 3663.333708))
sketch3.addConstraint(Sketcher.Constraint("DistanceY", -1, 1, 22, 3, 2796.042579))
sketch3.addConstraint(Sketcher.Constraint("DistanceY", -1, 1, 7, 2, 2724.023122))
sketch3.addConstraint(Sketcher.Constraint("DistanceX", -1, 1, 8, 2, 2753.147731))
sketch3.addConstraint(Sketcher.Constraint("DistanceY", -1, 1, 10, 2, 2384.975589))
sketch3.addConstraint(Sketcher.Constraint("DistanceY", 19, 3, 20, 3, 1.314029))
sketch3.addConstraint(Sketcher.Constraint("DistanceY", 20, 3, 18, 3, 154.957688))
sketch3.addConstraint(Sketcher.Constraint("DistanceY", 18, 3, 21, 3, 269.389271))
sketch3.addConstraint(Sketcher.Constraint("DistanceX", 17, 3, 21, 3, 203.87293))
sketch3.addConstraint(Sketcher.Constraint("DistanceX", 21, 3, 3, 2, 492.620441))
sketch3.addConstraint(Sketcher.Constraint("DistanceX", 9, 2, 8, 2, 464.711958))
pad3 = body3.newObject("PartDesign::Pad", "Pad002")
pad3.Profile = sketch3
pad3.Length = 15
pad3.Reversed = True
body4 = doc.addObject("PartDesign::Body", "Body003")

sketch4 = body4.newObject("Sketcher::SketchObject", "Sketch003")
sketch4.AttachmentSupport = (doc.getObject("XY_Plane003"), [""])
sketch4.MapMode = "FlatFace"
add_polygon(sketch4, [(2707, 2724), (2546, 2995), (1013, 2995), (769, 2854), (991, 2470), (2288, 2366), (2753, 2628)])
sketch4.addGeometry(Part.Circle(Vector(2173, 2472, 0), Vector(0, 0, 1), 36), False)
sketch4.addGeometry(Part.Circle(Vector(2529, 2678, 0), Vector(0, 0, 1), 36), False)
sketch4.addGeometry(Part.Circle(Vector(1840, 2637, 0), Vector(0, 0, 1), 36), False)
sketch4.addGeometry(Part.Circle(Vector(1604, 2654, 0), Vector(0, 0, 1), 36), False)
sketch4.addGeometry(Part.Circle(Vector(1121, 2654, 0), Vector(0, 0, 1), 36), False)
sketch4.addGeometry(Part.Circle(Vector(2039, 2911, 0), Vector(0, 0, 1), 36), False)
sketch4.addGeometry(Part.Circle(Vector(933, 2706, 0), Vector(0, 0, 1), 36), False)
sketch4.addGeometry(Part.Circle(Vector(1338, 2823, 0), Vector(0, 0, 1), 36), False)
sketch4.addGeometry(Part.Circle(Vector(849, 2847, 0), Vector(0, 0, 1), 36), False)
sketch4.addGeometry(Part.Circle(Vector(985, 2893, 0), Vector(0, 0, 1), 36), False)
sketch4.addConstraint(Sketcher.Constraint("Horizontal", 1))
sketch4.addConstraint(Sketcher.Constraint("Equal", 7, 8))
sketch4.addConstraint(Sketcher.Constraint("Equal", 8, 9))
sketch4.addConstraint(Sketcher.Constraint("Equal", 9, 10))
sketch4.addConstraint(Sketcher.Constraint("Equal", 10, 11))
sketch4.addConstraint(Sketcher.Constraint("Equal", 11, 12))
sketch4.addConstraint(Sketcher.Constraint("Equal", 12, 13))
sketch4.addConstraint(Sketcher.Constraint("Equal", 13, 14))
sketch4.addConstraint(Sketcher.Constraint("Equal", 14, 15))
sketch4.addConstraint(Sketcher.Constraint("Equal", 15, 16))
sketch4.addConstraint(Sketcher.Constraint("Perpendicular", 2, 3))
sketch4.addConstraint(Sketcher.Constraint("Diameter", 7, 71.321283))
sketch4.addConstraint(Sketcher.Constraint("DistanceX", 9, 3, 0, 2, 706.486999))
sketch4.addConstraint(Sketcher.Constraint("Distance", 6, 106.4767))
sketch4.addConstraint(Sketcher.Constraint("DistanceY", -1, 1, 10, 3, 2654.1286))
sketch4.addConstraint(Sketcher.Constraint("DistanceY", 15, 3, 1, 2, 147.507398))
sketch4.addConstraint(Sketcher.Constraint("Distance", 3, 442.851058))
sketch4.addConstraint(Sketcher.Constraint("Distance", 4, 1302.000038))
sketch4.addConstraint(Sketcher.Constraint("DistanceX", 1, 2, 1, 1, 1533.695195))
sketch4.addConstraint(Sketcher.Constraint("DistanceX", -1, 1, 8, 3, 2529.193138))
sketch4.addConstraint(Sketcher.Constraint("DistanceY", -1, 1, 8, 3, 2678.109912))
sketch4.addConstraint(Sketcher.Constraint("DistanceY", -1, 1, 9, 3, 2636.666181))
sketch4.addConstraint(Sketcher.Constraint("DistanceX", -1, 1, 11, 3, 1120.501661))
sketch4.addConstraint(Sketcher.Constraint("DistanceY", -1, 1, 11, 3, 2654.488109))
sketch4.addConstraint(Sketcher.Constraint("DistanceX", -1, 1, 15, 3, 849.423612))
sketch4.addConstraint(Sketcher.Constraint("DistanceY", -1, 1, 15, 3, 2847.179939))
sketch4.addConstraint(Sketcher.Constraint("DistanceX", -1, 1, 2, 2, 768.868519))
sketch4.addConstraint(Sketcher.Constraint("DistanceX", -1, 1, 3, 2, 990.63147))
sketch4.addConstraint(Sketcher.Constraint("DistanceX", -1, 1, 5, 2, 2753.147731))
sketch4.addConstraint(Sketcher.Constraint("DistanceY", -1, 1, 5, 2, 2628.069861))
sketch4.addConstraint(Sketcher.Constraint("DistanceY", -1, 1, 6, 2, 2724.023122))
sketch4.addConstraint(Sketcher.Constraint("DistanceX", 7, 3, 8, 3, 355.997921))
sketch4.addConstraint(Sketcher.Constraint("DistanceY", 7, 3, 8, 3, 206.024329))
sketch4.addConstraint(Sketcher.Constraint("DistanceX", 10, 3, 7, 3, 569.10523))
sketch4.addConstraint(Sketcher.Constraint("DistanceX", 9, 3, 12, 3, 199.47887))
sketch4.addConstraint(Sketcher.Constraint("DistanceY", 11, 3, 13, 3, 51.770389))
sketch4.addConstraint(Sketcher.Constraint("DistanceX", 13, 3, 10, 3, 671.26389))
sketch4.addConstraint(Sketcher.Constraint("DistanceX", 14, 3, 9, 3, 502.13701))
sketch4.addConstraint(Sketcher.Constraint("DistanceX", 15, 3, 14, 3, 488.272022))
sketch4.addConstraint(Sketcher.Constraint("DistanceX", 13, 3, 16, 3, 51.76706))
sketch4.addConstraint(Sketcher.Constraint("DistanceY", 14, 3, 16, 3, 70.610509))
sketch4.addConstraint(Sketcher.Constraint("DistanceY", 12, 3, 0, 2, 83.230211))
sketch4.addConstraint(Sketcher.Constraint("DistanceY", 2, 2, 16, 3, 39.526479))
sketch4.addConstraint(Sketcher.Constraint("DistanceX", 9, 3, 4, 2, 448.603128))
pad4 = body4.newObject("PartDesign::Pad", "Pad003")
pad4.Profile = sketch4
pad4.Length = 15

doc.recompute()
